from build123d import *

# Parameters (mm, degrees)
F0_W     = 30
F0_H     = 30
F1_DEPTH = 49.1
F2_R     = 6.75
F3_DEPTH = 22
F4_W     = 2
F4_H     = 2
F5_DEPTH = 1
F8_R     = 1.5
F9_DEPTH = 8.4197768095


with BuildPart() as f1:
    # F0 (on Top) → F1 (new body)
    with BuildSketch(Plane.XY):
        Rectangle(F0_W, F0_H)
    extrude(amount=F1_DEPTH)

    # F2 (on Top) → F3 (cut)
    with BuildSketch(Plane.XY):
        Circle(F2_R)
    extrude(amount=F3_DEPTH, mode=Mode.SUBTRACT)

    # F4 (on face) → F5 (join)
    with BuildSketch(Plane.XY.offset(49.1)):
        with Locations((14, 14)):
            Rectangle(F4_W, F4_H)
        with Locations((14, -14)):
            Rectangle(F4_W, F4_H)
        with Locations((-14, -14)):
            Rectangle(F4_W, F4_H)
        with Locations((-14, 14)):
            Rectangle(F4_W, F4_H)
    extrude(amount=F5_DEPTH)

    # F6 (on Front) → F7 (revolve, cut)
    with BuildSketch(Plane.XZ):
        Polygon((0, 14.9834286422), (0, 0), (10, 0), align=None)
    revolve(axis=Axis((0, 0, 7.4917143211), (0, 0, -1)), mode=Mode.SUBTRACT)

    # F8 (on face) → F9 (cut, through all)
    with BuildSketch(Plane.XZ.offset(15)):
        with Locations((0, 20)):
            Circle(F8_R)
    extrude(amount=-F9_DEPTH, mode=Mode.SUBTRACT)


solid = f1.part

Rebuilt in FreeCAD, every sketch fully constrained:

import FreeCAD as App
import Part
import Sketcher

V = App.Vector

doc = App.newDocument("Part")
body = doc.addObject("PartDesign::Body", "Body")

# Sketch on XY plane
sketch1 = doc.addObject("Sketcher::SketchObject", "Sketch")
body.addObject(sketch1)
sketch1.AttachmentSupport = (doc.XY_Plane, [""])
sketch1.MapMode = "FlatFace"
sketch1.addGeometry([
    Part.LineSegment(V(-15, 15, 0), V(-15, -15, 0)),
    Part.LineSegment(V(-15, -15, 0), V(15, -15, 0)),
    Part.LineSegment(V(15, -15, 0), V(15, 15, 0)),
    Part.LineSegment(V(15, 15, 0), V(-15, 15, 0)),
], False)
sketch1.addConstraint([
    Sketcher.Constraint("Coincident", 0, 2, 1, 1),
    Sketcher.Constraint("Coincident", 1, 2, 2, 1),
    Sketcher.Constraint("Coincident", 2, 2, 3, 1),
    Sketcher.Constraint("Coincident", 3, 2, 0, 1),
    Sketcher.Constraint("Vertical", 0),
    Sketcher.Constraint("Horizontal", 1),
    Sketcher.Constraint("Vertical", 2),
    Sketcher.Constraint("Horizontal", 3),
    Sketcher.Constraint("Symmetric", 0, 2, 2, 2, -1, 1),
    Sketcher.Constraint("Equal", 3, 0),
    Sketcher.Constraint("DistanceX", 1, 1, 1, 2, 30.0),
])
pad1 = doc.addObject("PartDesign::Pad", "Pad")
body.addObject(pad1)
pad1.Profile = sketch1
pad1.Length = 49.1

# Sketch on XY plane
sketch2 = doc.addObject("Sketcher::SketchObject", "Sketch001")
body.addObject(sketch2)
sketch2.AttachmentSupport = (doc.XY_Plane, [""])
sketch2.MapMode = "FlatFace"
sketch2.addGeometry(Part.Circle(V(0, 0, 0), V(0, 0, 1), 6.75), False)
sketch2.addConstraint([
    Sketcher.Constraint("Coincident", 0, 3, -1, 1),
    Sketcher.Constraint("Diameter", 0, 13.5),
])
pocket1 = doc.addObject("PartDesign::Pocket", "Pocket")
body.addObject(pocket1)
pocket1.Profile = sketch2
pocket1.Length = 22
pocket1.Reversed = True

# Sketch on XY plane
sketch3 = doc.addObject("Sketcher::SketchObject", "Sketch002")
body.addObject(sketch3)
sketch3.AttachmentSupport = (doc.XY_Plane, [""])
sketch3.MapMode = "FlatFace"
sketch3.AttachmentOffset = App.Placement(V(0, 0, 49.1), App.Rotation())
sketch3.addGeometry([
    Part.LineSegment(V(13, 15, 0), V(13, 13, 0)),  # 0
    Part.LineSegment(V(13, 13, 0), V(15, 13, 0)),  # 1
    Part.LineSegment(V(15, 13, 0), V(15, 15, 0)),  # 2
    Part.LineSegment(V(15, 15, 0), V(13, 15, 0)),  # 3
    Part.LineSegment(V(13, -13, 0), V(13, -15, 0)),  # 4
    Part.LineSegment(V(13, -15, 0), V(15, -15, 0)),  # 5
    Part.LineSegment(V(15, -15, 0), V(15, -13, 0)),  # 6
    Part.LineSegment(V(15, -13, 0), V(13, -13, 0)),  # 7
    Part.LineSegment(V(-15, -13, 0), V(-15, -15, 0)),  # 8
    Part.LineSegment(V(-15, -15, 0), V(-13, -15, 0)),  # 9
    Part.LineSegment(V(-13, -15, 0), V(-13, -13, 0)),  # 10
    Part.LineSegment(V(-13, -13, 0), V(-15, -13, 0)),  # 11
    Part.LineSegment(V(-15, 15, 0), V(-15, 13, 0)),  # 12
    Part.LineSegment(V(-15, 13, 0), V(-13, 13, 0)),  # 13
    Part.LineSegment(V(-13, 13, 0), V(-13, 15, 0)),  # 14
    Part.LineSegment(V(-13, 15, 0), V(-15, 15, 0)),  # 15
], False)
sketch3.addConstraint([
    Sketcher.Constraint("Coincident", 0, 2, 1, 1),
    Sketcher.Constraint("Coincident", 1, 2, 2, 1),
    Sketcher.Constraint("Coincident", 2, 2, 3, 1),
    Sketcher.Constraint("Coincident", 3, 2, 0, 1),
    Sketcher.Constraint("Coincident", 4, 2, 5, 1),
    Sketcher.Constraint("Coincident", 5, 2, 6, 1),
    Sketcher.Constraint("Coincident", 6, 2, 7, 1),
    Sketcher.Constraint("Coincident", 7, 2, 4, 1),
    Sketcher.Constraint("Coincident", 8, 2, 9, 1),
    Sketcher.Constraint("Coincident", 9, 2, 10, 1),
    Sketcher.Constraint("Coincident", 10, 2, 11, 1),
    Sketcher.Constraint("Coincident", 11, 2, 8, 1),
    Sketcher.Constraint("Coincident", 12, 2, 13, 1),
    Sketcher.Constraint("Coincident", 13, 2, 14, 1),
    Sketcher.Constraint("Coincident", 14, 2, 15, 1),
    Sketcher.Constraint("Coincident", 15, 2, 12, 1),
    Sketcher.Constraint("Vertical", 0),
    Sketcher.Constraint("Horizontal", 1),
    Sketcher.Constraint("Vertical", 2),
    Sketcher.Constraint("Horizontal", 3),
    Sketcher.Constraint("Vertical", 4),
    Sketcher.Constraint("Horizontal", 5),
    Sketcher.Constraint("Vertical", 6),
    Sketcher.Constraint("Horizontal", 7),
    Sketcher.Constraint("Vertical", 8),
    Sketcher.Constraint("Horizontal", 9),
    Sketcher.Constraint("Vertical", 10),
    Sketcher.Constraint("Horizontal", 11),
    Sketcher.Constraint("Vertical", 12),
    Sketcher.Constraint("Horizontal", 13),
    Sketcher.Constraint("Vertical", 14),
    Sketcher.Constraint("Horizontal", 15),
    Sketcher.Constraint("Symmetric", 2, 2, 8, 2, -1, 1),
    Sketcher.Constraint("Symmetric", 0, 2, 10, 2, -1, 1),
    Sketcher.Constraint("Symmetric", 6, 2, 12, 2, -1, 1),
    Sketcher.Constraint("Symmetric", 4, 2, 14, 2, -1, 1),
    Sketcher.Constraint("Symmetric", 5, 2, 8, 2, -2),
    Sketcher.Constraint("Symmetric", 7, 2, 10, 2, -2),
    Sketcher.Constraint("Equal", 15, 0),
    Sketcher.Constraint("DistanceX", 1, 1, 1, 2, 2.0),
    Sketcher.Constraint("DistanceX", -1, 1, 0, 2, 13.0),
    Sketcher.Constraint("DistanceY", -1, 1, 0, 2, 13.0),
])
pad2 = doc.addObject("PartDesign::Pad", "Pad001")
body.addObject(pad2)
pad2.Profile = sketch3
pad2.Length = 1

# Sketch on XZ plane
sketch4 = doc.addObject("Sketcher::SketchObject", "Sketch003")
body.addObject(sketch4)
sketch4.AttachmentSupport = (doc.XZ_Plane, [""])
sketch4.MapMode = "FlatFace"
sketch4.addGeometry([
    Part.LineSegment(V(0, 14.983429, 0), V(0, 0, 0)),
    Part.LineSegment(V(0, 0, 0), V(10, 0, 0)),
    Part.LineSegment(V(10, 0, 0), V(0, 14.983429, 0)),
], False)
sketch4.addConstraint([
    Sketcher.Constraint("Coincident", 0, 2, 1, 1),
    Sketcher.Constraint("Coincident", 1, 2, 2, 1),
    Sketcher.Constraint("Coincident", 2, 2, 0, 1),
    Sketcher.Constraint("Vertical", 0),
    Sketcher.Constraint("Horizontal", 1),
    Sketcher.Constraint("Coincident", 0, 2, -1, 1),
    Sketcher.Constraint("DistanceX", 1, 1, 1, 2, 10.0),
    Sketcher.Constraint("DistanceY", 0, 2, 0, 1, 14.983429),
])
groove = doc.addObject("PartDesign::Groove", "Groove")
body.addObject(groove)
groove.Profile = sketch4
groove.ReferenceAxis = (sketch4, ["V_Axis"])
groove.Angle = 360

# Sketch on XZ plane
sketch5 = doc.addObject("Sketcher::SketchObject", "Sketch004")
body.addObject(sketch5)
sketch5.AttachmentSupport = (doc.XZ_Plane, [""])
sketch5.MapMode = "FlatFace"
sketch5.AttachmentOffset = App.Placement(V(0, 0, 15), App.Rotation())
sketch5.addGeometry(Part.Circle(V(0, 20, 0), V(0, 0, 1), 1.5), False)
sketch5.addConstraint([
    Sketcher.Constraint("PointOnObject", 0, 3, -2),
    Sketcher.Constraint("Diameter", 0, 3.0),
    Sketcher.Constraint("DistanceY", -1, 1, 0, 3, 20.0),
])
pocket2 = doc.addObject("PartDesign::Pocket", "Pocket001")
body.addObject(pocket2)
pocket2.Profile = sketch5
pocket2.Length = 8.419777

doc.recompute()
